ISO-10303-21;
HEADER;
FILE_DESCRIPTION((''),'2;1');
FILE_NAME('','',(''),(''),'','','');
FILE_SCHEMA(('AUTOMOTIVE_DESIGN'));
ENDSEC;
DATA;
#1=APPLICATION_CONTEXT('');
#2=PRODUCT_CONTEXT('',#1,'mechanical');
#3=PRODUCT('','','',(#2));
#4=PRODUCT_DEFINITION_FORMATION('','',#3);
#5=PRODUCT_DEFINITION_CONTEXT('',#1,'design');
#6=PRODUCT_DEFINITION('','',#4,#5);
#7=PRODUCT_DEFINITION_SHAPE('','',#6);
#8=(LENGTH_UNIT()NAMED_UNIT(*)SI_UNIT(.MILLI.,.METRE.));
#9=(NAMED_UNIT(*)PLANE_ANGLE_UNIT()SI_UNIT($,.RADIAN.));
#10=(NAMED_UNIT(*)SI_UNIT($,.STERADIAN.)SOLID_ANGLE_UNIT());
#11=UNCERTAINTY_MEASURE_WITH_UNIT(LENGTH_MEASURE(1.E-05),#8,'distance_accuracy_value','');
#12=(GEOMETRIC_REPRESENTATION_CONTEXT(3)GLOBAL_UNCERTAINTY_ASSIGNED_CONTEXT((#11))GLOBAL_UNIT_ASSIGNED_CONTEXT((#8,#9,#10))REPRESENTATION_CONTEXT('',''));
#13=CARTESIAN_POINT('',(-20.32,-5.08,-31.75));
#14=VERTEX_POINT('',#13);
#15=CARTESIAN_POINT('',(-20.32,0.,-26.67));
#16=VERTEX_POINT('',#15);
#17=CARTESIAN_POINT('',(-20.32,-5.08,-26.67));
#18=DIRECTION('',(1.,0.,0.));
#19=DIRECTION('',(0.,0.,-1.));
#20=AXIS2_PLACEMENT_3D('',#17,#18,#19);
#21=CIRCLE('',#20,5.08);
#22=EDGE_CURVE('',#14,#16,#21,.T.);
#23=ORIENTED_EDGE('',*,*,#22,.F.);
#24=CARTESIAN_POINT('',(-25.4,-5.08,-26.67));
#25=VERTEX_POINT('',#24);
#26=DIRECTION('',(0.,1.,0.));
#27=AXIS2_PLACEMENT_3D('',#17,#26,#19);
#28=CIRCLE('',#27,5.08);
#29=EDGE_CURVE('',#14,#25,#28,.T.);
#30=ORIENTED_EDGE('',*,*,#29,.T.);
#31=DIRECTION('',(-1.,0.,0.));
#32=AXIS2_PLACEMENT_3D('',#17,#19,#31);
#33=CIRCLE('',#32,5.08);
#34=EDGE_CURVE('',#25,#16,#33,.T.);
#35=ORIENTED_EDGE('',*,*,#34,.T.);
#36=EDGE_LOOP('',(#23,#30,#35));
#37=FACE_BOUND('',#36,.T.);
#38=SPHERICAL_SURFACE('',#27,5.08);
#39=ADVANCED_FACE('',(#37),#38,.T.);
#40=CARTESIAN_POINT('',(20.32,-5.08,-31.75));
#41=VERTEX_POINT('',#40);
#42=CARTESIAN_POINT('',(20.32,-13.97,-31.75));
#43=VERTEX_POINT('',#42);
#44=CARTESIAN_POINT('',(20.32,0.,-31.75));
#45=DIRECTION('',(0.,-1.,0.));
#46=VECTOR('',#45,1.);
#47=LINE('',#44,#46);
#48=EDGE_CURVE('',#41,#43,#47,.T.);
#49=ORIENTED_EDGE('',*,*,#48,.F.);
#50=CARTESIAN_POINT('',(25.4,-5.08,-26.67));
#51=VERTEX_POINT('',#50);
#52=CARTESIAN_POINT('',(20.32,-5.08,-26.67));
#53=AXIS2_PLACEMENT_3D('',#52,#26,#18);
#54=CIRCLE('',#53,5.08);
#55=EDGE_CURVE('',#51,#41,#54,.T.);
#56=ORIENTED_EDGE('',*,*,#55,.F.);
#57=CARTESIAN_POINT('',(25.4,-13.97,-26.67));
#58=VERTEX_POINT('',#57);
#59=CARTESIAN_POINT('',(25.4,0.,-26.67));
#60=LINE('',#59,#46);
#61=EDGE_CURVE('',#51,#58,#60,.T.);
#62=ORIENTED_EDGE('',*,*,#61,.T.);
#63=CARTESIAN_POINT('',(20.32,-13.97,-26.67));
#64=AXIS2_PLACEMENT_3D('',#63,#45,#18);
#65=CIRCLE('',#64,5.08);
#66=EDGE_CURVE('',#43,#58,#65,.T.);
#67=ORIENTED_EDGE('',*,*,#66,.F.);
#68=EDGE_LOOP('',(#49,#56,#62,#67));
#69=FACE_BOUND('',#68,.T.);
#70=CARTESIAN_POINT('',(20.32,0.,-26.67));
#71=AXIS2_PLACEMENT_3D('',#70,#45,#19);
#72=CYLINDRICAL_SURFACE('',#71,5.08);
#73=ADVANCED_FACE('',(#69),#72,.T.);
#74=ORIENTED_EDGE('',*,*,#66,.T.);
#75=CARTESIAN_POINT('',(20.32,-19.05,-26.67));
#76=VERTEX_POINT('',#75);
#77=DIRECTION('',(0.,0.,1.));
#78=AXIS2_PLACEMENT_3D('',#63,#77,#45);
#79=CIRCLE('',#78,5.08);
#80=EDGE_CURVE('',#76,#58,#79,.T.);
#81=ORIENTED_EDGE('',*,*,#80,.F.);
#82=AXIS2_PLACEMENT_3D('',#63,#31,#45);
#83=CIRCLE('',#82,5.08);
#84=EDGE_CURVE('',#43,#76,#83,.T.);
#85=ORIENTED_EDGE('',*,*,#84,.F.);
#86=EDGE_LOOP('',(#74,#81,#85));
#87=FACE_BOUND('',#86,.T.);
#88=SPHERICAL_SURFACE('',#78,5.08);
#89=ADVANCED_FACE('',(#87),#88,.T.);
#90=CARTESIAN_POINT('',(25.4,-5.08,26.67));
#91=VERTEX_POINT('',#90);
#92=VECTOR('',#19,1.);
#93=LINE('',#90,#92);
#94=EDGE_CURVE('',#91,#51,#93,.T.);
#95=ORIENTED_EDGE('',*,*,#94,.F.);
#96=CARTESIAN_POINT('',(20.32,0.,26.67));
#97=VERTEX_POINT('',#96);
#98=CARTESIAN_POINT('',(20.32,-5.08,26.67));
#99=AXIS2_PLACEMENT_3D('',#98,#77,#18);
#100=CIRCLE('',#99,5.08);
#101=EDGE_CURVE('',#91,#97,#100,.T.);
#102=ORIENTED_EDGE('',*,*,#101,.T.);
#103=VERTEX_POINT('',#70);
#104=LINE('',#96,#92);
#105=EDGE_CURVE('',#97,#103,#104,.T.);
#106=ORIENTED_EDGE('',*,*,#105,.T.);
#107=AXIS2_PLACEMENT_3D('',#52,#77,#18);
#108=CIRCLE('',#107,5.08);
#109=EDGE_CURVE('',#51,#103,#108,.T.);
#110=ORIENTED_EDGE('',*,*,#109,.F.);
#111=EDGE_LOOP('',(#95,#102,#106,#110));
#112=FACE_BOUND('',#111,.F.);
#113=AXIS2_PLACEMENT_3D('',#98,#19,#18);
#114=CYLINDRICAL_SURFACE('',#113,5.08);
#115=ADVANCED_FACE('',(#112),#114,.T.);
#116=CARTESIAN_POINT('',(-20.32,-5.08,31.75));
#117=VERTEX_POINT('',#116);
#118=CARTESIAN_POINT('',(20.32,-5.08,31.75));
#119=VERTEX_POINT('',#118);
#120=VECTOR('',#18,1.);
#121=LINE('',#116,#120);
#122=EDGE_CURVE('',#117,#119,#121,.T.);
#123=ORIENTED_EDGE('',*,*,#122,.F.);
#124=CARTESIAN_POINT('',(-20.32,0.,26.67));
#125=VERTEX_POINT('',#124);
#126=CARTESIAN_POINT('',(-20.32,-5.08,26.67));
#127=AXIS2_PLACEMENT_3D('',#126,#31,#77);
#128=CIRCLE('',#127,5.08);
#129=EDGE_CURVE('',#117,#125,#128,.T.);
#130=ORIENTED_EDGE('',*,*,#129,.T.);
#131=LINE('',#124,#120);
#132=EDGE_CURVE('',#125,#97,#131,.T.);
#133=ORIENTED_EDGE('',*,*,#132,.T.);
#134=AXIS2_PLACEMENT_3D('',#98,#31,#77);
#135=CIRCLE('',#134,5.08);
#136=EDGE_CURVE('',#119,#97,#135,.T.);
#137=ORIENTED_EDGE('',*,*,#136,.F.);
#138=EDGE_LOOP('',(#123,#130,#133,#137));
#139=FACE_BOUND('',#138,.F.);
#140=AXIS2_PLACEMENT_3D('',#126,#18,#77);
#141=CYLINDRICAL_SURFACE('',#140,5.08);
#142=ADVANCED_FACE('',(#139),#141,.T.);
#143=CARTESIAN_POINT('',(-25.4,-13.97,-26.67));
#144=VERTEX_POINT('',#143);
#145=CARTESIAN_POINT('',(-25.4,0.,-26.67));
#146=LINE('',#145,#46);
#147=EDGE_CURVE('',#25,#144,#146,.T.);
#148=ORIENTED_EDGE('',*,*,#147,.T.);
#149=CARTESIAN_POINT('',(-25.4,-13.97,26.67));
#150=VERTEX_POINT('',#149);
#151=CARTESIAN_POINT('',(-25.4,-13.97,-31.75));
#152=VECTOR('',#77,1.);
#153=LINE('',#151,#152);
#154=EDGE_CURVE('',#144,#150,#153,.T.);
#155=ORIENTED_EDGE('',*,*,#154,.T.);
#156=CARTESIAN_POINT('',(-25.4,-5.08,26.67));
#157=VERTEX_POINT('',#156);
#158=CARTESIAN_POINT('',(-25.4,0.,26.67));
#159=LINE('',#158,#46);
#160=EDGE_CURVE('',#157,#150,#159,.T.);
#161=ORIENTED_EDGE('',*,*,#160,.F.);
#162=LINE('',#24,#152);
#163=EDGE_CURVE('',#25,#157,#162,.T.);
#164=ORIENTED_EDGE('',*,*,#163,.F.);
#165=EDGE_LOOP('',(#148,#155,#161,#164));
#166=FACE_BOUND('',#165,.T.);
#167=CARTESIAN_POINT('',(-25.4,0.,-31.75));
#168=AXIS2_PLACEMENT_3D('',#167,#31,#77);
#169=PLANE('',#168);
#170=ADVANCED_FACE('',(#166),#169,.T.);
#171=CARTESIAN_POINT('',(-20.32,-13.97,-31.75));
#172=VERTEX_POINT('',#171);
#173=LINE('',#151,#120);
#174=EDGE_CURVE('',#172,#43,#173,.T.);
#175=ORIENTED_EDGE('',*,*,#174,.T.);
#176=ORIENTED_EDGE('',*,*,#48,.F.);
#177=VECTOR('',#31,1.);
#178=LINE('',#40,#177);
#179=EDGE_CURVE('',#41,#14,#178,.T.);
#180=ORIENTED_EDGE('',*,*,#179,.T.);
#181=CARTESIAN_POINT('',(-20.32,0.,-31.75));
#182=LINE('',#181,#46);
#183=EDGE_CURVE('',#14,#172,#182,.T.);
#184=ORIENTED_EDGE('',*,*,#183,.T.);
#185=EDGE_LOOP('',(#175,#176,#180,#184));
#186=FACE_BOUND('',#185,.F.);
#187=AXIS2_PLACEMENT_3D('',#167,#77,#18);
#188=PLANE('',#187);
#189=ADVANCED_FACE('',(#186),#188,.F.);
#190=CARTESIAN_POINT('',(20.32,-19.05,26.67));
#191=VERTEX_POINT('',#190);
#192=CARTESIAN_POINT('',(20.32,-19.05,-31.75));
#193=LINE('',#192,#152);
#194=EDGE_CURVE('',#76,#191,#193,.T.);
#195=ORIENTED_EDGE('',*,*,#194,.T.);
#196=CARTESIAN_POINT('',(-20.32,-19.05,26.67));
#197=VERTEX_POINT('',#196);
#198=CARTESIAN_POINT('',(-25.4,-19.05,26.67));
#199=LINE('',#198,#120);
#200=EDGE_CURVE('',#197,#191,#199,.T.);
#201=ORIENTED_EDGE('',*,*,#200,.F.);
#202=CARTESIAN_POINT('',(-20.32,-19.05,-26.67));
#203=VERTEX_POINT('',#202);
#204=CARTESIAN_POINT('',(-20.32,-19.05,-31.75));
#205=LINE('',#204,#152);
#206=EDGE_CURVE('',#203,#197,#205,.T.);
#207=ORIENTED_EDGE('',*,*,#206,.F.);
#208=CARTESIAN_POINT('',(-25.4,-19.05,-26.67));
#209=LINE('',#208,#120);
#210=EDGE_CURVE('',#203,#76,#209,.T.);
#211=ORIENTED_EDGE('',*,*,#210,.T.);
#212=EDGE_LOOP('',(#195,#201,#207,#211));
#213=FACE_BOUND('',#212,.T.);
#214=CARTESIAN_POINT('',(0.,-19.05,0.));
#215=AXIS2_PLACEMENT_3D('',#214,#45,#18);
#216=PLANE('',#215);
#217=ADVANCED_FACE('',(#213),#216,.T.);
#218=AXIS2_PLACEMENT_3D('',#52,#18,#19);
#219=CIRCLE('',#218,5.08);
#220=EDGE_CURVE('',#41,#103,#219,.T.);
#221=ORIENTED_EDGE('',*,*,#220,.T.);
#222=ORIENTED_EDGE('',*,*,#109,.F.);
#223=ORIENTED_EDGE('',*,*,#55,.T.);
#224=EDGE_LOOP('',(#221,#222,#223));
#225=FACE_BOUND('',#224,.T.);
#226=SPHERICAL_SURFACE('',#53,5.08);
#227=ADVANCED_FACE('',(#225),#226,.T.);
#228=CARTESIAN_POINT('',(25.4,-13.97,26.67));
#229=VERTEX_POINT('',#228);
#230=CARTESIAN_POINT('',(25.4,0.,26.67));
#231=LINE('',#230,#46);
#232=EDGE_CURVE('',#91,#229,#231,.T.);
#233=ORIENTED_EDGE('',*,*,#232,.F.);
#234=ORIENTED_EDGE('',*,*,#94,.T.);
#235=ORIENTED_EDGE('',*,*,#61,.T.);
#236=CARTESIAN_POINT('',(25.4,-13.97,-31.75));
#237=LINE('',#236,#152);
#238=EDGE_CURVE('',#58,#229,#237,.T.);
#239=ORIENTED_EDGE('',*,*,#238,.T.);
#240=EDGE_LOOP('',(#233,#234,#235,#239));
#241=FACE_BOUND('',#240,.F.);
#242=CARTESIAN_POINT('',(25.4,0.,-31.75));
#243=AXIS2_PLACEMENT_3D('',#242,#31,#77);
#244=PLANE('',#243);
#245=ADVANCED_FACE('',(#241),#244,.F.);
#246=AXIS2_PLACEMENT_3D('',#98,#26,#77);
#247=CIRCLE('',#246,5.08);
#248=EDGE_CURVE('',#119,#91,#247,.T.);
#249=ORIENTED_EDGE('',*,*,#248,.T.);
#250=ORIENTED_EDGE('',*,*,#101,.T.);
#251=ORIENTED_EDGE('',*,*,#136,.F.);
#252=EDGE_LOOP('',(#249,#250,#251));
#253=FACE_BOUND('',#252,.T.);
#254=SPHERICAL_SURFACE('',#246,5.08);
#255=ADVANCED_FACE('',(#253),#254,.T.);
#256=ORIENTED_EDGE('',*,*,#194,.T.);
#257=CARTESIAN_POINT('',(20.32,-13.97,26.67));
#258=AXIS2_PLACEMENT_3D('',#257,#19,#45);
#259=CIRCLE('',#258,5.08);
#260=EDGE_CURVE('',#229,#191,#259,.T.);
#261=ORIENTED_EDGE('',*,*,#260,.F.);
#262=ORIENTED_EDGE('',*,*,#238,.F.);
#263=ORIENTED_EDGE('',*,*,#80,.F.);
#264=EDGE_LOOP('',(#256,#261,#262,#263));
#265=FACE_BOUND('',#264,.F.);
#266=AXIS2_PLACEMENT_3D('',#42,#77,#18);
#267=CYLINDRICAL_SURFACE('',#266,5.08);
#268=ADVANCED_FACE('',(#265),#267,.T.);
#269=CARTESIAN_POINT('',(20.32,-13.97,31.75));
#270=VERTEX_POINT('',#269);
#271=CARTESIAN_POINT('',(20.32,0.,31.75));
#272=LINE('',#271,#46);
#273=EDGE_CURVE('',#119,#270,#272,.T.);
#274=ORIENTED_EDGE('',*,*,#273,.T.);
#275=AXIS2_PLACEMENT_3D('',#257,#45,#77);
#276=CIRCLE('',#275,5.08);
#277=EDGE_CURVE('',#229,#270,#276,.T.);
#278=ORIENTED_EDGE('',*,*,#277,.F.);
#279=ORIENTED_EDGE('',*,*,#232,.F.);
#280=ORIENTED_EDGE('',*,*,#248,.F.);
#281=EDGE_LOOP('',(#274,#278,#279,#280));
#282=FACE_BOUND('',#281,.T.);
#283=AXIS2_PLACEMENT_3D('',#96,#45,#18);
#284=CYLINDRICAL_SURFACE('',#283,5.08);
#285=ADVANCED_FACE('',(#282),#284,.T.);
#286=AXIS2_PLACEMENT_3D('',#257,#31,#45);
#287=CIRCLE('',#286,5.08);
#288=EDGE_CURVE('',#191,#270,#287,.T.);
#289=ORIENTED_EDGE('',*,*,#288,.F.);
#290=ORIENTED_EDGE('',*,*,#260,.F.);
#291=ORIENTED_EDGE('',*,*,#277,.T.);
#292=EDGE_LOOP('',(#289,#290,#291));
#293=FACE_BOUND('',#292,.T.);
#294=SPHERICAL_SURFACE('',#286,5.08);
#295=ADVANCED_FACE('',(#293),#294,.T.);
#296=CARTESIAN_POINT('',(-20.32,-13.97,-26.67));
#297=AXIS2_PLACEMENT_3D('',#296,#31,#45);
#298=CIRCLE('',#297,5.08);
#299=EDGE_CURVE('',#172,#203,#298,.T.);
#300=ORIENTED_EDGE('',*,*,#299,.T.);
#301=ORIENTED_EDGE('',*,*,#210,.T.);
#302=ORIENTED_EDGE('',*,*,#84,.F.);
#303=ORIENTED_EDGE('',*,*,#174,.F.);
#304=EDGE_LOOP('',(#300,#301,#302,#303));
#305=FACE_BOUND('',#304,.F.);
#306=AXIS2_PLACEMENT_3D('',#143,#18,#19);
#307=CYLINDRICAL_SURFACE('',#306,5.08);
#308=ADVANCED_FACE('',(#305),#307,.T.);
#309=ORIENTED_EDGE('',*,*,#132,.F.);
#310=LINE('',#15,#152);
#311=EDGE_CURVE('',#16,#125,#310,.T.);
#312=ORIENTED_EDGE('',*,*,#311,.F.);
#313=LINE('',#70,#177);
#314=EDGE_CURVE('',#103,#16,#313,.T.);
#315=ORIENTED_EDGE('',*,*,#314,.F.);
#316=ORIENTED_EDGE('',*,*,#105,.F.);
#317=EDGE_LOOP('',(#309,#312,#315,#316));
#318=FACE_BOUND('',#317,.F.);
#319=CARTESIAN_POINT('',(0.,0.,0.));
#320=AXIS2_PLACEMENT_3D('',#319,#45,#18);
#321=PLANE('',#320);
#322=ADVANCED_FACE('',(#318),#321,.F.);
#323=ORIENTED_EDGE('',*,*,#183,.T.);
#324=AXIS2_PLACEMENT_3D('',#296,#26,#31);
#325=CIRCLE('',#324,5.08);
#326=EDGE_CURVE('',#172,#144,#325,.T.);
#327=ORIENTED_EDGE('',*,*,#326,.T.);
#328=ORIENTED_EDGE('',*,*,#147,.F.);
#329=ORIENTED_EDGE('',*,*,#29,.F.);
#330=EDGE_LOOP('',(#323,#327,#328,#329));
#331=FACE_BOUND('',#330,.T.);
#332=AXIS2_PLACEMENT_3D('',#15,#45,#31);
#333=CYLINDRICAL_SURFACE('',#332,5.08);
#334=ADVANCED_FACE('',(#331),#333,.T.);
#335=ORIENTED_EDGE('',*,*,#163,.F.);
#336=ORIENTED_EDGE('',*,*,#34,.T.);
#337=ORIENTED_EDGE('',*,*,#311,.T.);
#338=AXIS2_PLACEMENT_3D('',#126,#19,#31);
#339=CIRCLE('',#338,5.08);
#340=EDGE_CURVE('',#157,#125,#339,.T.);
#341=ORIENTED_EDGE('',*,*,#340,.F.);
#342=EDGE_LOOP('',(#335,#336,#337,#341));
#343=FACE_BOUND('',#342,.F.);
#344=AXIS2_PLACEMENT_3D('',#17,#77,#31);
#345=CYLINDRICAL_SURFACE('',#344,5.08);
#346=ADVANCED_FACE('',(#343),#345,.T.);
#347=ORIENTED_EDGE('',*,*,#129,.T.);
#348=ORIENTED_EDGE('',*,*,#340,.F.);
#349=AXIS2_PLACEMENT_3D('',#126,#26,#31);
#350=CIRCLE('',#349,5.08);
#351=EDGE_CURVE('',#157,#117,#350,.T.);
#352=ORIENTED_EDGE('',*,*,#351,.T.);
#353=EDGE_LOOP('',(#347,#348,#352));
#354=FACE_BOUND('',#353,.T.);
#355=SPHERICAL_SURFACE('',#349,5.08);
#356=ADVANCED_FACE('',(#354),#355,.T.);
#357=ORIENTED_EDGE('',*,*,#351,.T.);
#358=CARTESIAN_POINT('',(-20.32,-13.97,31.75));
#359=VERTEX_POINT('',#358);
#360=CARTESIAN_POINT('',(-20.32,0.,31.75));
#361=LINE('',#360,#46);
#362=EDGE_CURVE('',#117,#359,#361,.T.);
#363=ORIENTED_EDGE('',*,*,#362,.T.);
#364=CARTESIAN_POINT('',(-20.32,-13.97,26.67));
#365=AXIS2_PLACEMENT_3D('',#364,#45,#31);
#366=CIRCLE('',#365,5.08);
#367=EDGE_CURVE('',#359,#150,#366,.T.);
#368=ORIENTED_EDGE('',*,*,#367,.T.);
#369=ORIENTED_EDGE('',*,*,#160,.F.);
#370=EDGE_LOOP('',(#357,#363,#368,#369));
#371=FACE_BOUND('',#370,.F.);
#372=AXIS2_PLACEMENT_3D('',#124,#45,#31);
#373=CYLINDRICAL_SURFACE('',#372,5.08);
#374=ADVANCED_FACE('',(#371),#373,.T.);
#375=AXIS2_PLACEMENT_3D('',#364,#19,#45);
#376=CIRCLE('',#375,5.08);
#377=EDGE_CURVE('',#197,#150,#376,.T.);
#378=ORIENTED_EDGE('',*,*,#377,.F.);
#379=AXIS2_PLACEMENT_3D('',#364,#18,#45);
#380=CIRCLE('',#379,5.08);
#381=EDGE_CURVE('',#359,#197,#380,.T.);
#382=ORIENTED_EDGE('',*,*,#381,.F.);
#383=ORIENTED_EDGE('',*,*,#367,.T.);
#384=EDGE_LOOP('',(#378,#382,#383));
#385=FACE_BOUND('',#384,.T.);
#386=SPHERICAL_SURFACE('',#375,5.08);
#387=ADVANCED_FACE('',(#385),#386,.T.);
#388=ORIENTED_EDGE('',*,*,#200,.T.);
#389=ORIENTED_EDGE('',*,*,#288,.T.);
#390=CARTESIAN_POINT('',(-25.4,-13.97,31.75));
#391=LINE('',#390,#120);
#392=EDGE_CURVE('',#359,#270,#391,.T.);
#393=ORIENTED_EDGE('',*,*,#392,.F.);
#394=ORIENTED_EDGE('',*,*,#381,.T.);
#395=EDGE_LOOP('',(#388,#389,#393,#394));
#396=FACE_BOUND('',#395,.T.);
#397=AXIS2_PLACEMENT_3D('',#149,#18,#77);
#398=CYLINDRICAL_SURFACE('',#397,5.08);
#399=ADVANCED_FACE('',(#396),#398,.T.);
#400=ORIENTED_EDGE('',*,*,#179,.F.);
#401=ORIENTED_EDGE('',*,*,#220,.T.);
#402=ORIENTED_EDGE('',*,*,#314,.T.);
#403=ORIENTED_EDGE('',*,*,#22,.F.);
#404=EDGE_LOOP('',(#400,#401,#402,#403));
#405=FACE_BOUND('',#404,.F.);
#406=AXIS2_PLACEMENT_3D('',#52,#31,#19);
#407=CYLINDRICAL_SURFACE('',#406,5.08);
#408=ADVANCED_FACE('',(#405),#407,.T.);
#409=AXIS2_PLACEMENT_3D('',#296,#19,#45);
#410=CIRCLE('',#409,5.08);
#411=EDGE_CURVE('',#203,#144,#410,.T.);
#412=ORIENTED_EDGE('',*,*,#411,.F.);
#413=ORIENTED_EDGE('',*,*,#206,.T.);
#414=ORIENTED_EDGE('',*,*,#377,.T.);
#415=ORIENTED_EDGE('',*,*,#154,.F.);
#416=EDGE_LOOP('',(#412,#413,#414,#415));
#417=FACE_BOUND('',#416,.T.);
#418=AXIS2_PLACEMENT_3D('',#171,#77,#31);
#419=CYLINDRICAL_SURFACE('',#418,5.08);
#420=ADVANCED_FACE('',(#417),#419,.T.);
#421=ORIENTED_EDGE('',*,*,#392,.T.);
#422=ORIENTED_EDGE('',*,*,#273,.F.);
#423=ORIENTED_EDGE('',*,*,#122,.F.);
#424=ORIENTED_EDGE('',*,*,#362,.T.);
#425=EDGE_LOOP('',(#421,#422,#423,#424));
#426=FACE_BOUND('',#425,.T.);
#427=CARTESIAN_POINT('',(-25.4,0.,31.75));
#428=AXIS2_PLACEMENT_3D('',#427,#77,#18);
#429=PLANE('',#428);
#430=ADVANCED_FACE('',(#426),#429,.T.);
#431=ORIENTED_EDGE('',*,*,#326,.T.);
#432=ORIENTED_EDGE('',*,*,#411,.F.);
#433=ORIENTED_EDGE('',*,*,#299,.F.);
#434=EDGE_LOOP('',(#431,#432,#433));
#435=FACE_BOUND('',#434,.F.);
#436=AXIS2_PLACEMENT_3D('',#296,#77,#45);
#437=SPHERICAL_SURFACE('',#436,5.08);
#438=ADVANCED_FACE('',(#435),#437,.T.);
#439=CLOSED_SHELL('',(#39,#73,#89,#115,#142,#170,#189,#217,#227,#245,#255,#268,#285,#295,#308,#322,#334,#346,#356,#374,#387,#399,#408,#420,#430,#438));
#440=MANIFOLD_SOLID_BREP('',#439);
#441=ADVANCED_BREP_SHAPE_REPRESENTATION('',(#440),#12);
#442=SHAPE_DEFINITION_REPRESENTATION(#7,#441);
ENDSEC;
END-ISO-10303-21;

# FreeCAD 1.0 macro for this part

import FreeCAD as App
import Part
import Sketcher
from FreeCAD import Vector
Q = App.Units.Quantity


def edges_at(feature, points):
    """Names of the edges that pass closest to the given points."""
    edges = feature.Shape.Edges
    near = lambda p: min(range(len(edges)), key=lambda i: edges[i].distToShape(Part.Vertex(*p))[0])
    return sorted({f"Edge{near(p) + 1}" for p in points})


def add_polygon(sketch, points):
    """Adds a closed chain of lines whose ends are joined by coincident constraints."""
    first, n = sketch.GeometryCount, len(points)
    for a, b in zip(points, points[1:] + points[:1]):
        sketch.addGeometry(Part.LineSegment(App.Vector(*a, 0), App.Vector(*b, 0)), False)
    for i in range(n):
        sketch.addConstraint(Sketcher.Constraint("Coincident", first + i, 2, first + (i + 1) % n, 1))

doc = App.newDocument("Part")
body = doc.addObject("PartDesign::Body", "Body")

# Sketch on XZ plane
sketch1 = body.newObject("Sketcher::SketchObject", "Sketch")
sketch1.AttachmentSupport = (doc.getObject("XZ_Plane"), [""])
sketch1.MapMode = "FlatFace"
add_polygon(sketch1, [(-25, 32), (-25, -32), (25, -32), (25, 32)])  # lines 0-3
sketch1.addConstraint(Sketcher.Constraint("Vertical", 0))
sketch1.addConstraint(Sketcher.Constraint("Horizontal", 1))
sketch1.addConstraint(Sketcher.Constraint("Vertical", 2))
sketch1.addConstraint(Sketcher.Constraint("Horizontal", 3))
sketch1.addConstraint(Sketcher.Constraint("Symmetric", 0, 2, 2, 2, -1, 1))
sketch1.addConstraint(Sketcher.Constraint("DistanceX", 1, 1, 1, 2, Q("2 in")))
sketch1.addConstraint(Sketcher.Constraint("DistanceY", 0, 2, 0, 1, Q("2.5 in")))
pad1 = body.newObject("PartDesign::Pad", "Pad")
pad1.Profile = sketch1
pad1.Length = Q("0.75 in")
doc.recompute()

fillet = body.newObject("PartDesign::Fillet", "Fillet")
fillet.Base = (pad1, edges_at(pad1, [
    (-25.4, -19.05, 0),
    (0, -19.05, 31.75),
    (25.4, -19.05, 0),
    (0, -19.05, -31.75),
    (25.4, -9.525, -31.75),
    (-25.4, -9.525, -31.75),
    (25.4, -9.525, 31.75),
    (-25.4, -9.525, 31.75),
]))
fillet.Radius = Q("0.2 in")
doc.recompute()

fillet2 = body.newObject("PartDesign::Fillet", "Fillet001")
fillet2.Base = (fillet, edges_at(fillet, [(-25.4, 0, 0)]))
fillet2.Radius = Q("0.2 in")

doc.recompute()
